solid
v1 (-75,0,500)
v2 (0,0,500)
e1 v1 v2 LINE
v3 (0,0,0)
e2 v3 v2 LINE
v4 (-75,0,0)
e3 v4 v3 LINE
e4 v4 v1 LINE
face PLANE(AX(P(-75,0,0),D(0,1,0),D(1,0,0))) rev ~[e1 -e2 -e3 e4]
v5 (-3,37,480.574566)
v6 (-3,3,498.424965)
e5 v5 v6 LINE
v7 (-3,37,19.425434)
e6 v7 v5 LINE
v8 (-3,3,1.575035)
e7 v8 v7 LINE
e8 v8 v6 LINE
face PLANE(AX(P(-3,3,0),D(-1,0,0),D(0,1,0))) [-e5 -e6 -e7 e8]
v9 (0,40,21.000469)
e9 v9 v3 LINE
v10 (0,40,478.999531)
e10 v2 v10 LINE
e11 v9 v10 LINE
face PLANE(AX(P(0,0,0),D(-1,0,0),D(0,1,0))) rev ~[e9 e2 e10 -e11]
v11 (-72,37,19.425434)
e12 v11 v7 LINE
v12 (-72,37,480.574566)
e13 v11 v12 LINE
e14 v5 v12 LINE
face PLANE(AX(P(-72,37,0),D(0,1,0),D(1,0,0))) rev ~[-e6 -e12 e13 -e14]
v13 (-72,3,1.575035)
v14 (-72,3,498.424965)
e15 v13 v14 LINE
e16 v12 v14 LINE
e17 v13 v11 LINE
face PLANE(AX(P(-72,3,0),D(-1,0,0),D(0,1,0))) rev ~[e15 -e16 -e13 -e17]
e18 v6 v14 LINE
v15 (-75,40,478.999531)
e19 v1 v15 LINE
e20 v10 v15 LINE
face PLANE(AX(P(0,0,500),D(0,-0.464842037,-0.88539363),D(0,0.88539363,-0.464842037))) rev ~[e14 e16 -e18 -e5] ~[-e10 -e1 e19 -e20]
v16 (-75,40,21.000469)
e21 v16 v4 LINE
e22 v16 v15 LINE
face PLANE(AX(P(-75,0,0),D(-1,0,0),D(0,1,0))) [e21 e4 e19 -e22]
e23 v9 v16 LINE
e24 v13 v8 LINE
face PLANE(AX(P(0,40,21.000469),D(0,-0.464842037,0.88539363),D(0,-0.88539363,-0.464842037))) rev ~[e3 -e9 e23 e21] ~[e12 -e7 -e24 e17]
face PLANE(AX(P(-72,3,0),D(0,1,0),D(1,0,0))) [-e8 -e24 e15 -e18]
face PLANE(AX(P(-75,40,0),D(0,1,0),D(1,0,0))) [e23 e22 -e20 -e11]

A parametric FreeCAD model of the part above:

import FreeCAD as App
import Part
import Sketcher

V = App.Vector
Q = App.Units.Quantity


def add_polygon(sketch, points):
    """Adds a closed chain of lines whose ends are joined by coincident constraints."""
    first, n = sketch.GeometryCount, len(points)
    for a, b in zip(points, points[1:] + points[:1]):
        sketch.addGeometry(Part.LineSegment(App.Vector(*a, 0), App.Vector(*b, 0)), False)
    for i in range(n):
        sketch.addConstraint(Sketcher.Constraint("Coincident", first + i, 2, first + (i + 1) % n, 1))

doc = App.newDocument("Part")
params = doc.addObject("Spreadsheet::Sheet", "Params")
for row, (alias, value) in enumerate([
    ("sketch1_width", "75 mm"),
    ("sketch1_width2", "69 mm"),
    ("sketch1_height", "40 mm"),
    ("sketch1_height2", "34 mm"),
    ("pad1_length", "500 mm"),
    ("sketch2_width", "40 mm"),
], start=1):
    params.set(f"A{row}", alias)
    params.set(f"B{row}", "=" + value)
    params.setAlias(f"B{row}", alias)

body = doc.addObject("PartDesign::Body", "Body")

# Sketch on XY plane
sketch1 = doc.addObject("Sketcher::SketchObject", "Sketch")
body.addObject(sketch1)
sketch1.AttachmentSupport = (doc.XY_Plane, [""])
sketch1.MapMode = "FlatFace"
add_polygon(sketch1, [(-75, 40), (-75, 0), (0, 0), (0, 40)])  # lines 0-3
add_polygon(sketch1, [(-3, 3), (-72, 3), (-72, 37), (-3, 37)])  # lines 4-7
sketch1.addConstraint([
    Sketcher.Constraint("Vertical", 0),
    Sketcher.Constraint("Horizontal", 1),
    Sketcher.Constraint("Vertical", 2),
    Sketcher.Constraint("Horizontal", 3),
    Sketcher.Constraint("Horizontal", 4),
    Sketcher.Constraint("Vertical", 5),
    Sketcher.Constraint("Horizontal", 6),
    Sketcher.Constraint("Vertical", 7),
    Sketcher.Constraint("Coincident", 1, 2, -1, 1),
    Sketcher.Constraint("DistanceX", 1, 1, 1, 2, 75.0),
    Sketcher.Constraint("DistanceX", 4, 2, 4, 1, 69.0),
    Sketcher.Constraint("DistanceY", 0, 2, 0, 1, 40.0),
    Sketcher.Constraint("DistanceY", 5, 1, 5, 2, 34.0),
    Sketcher.Constraint("DistanceX", 4, 2, -1, 1, 72.0),
    Sketcher.Constraint("DistanceY", -1, 1, 4, 2, 3.0),
])
sketch1.setExpression("Constraints[17]", "Params.sketch1_width")
sketch1.setExpression("Constraints[18]", "Params.sketch1_width2")
sketch1.setExpression("Constraints[19]", "Params.sketch1_height")
sketch1.setExpression("Constraints[20]", "Params.sketch1_height2")
pad1 = doc.addObject("PartDesign::Pad", "Pad")
body.addObject(pad1)
pad1.Profile = sketch1
pad1.setExpression("Length", "Params.pad1_length")

# Sketch on YZ plane
sketch2 = doc.addObject("Sketcher::SketchObject", "Sketch001")
body.addObject(sketch2)
sketch2.AttachmentSupport = (doc.YZ_Plane, [""])
sketch2.MapMode = "FlatFace"
add_polygon(sketch2, [(40, 500), (0, 500), (40, 478.999531)])  # lines 0-2
add_polygon(sketch2, [(40, 21.000469), (0, 0), (40, 0)])  # lines 3-5
sketch2.addConstraint([
    Sketcher.Constraint("Horizontal", 0),
    Sketcher.Constraint("Vertical", 2),
    Sketcher.Constraint("Horizontal", 4),
    Sketcher.Constraint("Vertical", 5),
    Sketcher.Constraint("Coincident", 3, 2, -1, 1),
    Sketcher.Constraint("PointOnObject", 0, 2, -2),
    Sketcher.Constraint("Vertical", 2, 2, 4, 2),
    Sketcher.Constraint("Equal", 2, 5),
    Sketcher.Constraint("DistanceX", 0, 2, 0, 1, 40.0),
    Sketcher.Constraint("DistanceY", -1, 1, 0, 2, 500.0),
    Sketcher.Constraint("Angle", 1, Q("-27.699999 deg")),
])
sketch2.setExpression("Constraints[14]", "Params.sketch2_width")
pocket1 = doc.addObject("PartDesign::Pocket", "Pocket")
body.addObject(pocket1)
pocket1.Profile = sketch2
pocket1.Type = "ThroughAll"

doc.recompute()
